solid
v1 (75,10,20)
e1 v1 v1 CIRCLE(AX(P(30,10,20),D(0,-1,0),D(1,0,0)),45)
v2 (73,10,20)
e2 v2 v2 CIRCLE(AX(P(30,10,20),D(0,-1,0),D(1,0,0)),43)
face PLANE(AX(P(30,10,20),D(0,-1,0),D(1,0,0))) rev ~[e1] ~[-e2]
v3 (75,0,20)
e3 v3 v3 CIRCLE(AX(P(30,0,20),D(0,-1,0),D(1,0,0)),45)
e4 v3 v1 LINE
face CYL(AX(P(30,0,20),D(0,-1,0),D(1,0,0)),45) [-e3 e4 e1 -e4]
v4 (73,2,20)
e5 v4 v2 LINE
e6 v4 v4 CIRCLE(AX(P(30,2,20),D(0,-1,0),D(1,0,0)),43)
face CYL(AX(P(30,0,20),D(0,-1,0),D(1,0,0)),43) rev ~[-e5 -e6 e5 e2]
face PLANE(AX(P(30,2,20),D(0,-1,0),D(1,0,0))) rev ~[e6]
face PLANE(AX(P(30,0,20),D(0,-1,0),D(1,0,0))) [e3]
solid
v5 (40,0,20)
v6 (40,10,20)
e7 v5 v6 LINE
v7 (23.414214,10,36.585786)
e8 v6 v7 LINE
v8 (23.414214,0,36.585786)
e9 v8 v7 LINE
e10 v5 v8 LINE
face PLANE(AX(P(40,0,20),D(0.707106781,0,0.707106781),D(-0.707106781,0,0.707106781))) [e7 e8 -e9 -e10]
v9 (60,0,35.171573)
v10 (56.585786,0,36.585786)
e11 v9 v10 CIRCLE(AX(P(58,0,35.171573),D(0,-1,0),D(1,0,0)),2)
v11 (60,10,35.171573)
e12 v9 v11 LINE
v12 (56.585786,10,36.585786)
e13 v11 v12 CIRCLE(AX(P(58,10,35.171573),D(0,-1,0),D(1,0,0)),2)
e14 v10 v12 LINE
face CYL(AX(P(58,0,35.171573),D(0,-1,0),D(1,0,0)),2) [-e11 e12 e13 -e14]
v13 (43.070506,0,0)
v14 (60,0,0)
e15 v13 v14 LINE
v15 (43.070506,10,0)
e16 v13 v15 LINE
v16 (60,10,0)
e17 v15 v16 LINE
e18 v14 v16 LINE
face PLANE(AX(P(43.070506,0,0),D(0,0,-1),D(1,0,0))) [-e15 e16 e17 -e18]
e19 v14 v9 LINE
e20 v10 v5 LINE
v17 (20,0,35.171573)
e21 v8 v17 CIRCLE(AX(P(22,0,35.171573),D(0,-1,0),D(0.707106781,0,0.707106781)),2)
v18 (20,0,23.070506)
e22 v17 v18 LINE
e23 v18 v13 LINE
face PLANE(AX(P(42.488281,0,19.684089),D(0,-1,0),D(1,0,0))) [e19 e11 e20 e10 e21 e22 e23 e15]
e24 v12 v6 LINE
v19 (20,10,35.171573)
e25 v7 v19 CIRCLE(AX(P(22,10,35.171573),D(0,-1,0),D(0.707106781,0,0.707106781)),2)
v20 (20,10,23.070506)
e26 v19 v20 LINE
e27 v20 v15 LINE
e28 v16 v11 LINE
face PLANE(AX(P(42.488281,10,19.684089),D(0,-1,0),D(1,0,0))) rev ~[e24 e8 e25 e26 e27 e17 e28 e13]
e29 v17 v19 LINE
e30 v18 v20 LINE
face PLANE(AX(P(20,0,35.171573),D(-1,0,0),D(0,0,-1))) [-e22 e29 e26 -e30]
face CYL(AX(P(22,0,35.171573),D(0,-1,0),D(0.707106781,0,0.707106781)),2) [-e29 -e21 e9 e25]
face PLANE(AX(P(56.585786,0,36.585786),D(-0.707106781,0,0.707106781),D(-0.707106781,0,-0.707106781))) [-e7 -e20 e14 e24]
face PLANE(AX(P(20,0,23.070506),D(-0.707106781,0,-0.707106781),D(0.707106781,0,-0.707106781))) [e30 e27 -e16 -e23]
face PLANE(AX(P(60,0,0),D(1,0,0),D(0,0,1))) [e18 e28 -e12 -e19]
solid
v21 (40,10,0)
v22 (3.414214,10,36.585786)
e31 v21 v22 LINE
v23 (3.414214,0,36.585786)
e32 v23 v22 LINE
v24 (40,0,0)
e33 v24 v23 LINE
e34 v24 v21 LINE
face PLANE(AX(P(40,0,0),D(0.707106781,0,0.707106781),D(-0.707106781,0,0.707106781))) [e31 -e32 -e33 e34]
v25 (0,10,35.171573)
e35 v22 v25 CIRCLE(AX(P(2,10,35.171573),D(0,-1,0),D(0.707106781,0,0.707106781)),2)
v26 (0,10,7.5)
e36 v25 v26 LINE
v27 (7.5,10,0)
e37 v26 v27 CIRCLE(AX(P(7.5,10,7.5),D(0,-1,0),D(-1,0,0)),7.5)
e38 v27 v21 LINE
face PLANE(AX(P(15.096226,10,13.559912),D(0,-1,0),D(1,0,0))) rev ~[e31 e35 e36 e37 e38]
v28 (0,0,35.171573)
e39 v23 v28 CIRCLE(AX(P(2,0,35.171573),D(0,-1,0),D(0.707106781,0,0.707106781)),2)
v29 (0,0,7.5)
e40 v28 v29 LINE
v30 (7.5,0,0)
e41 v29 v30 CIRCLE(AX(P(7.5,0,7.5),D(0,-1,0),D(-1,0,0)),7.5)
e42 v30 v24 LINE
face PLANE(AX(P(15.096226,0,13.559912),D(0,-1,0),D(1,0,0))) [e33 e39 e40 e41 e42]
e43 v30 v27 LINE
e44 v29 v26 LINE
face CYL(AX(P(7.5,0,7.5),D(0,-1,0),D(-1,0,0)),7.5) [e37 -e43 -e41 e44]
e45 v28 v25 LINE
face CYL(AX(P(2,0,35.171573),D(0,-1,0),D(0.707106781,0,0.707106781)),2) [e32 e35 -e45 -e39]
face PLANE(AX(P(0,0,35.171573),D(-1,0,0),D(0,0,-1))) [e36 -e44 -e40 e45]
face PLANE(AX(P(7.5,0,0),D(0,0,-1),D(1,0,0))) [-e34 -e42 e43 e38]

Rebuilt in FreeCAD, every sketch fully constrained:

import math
import FreeCAD as App
import Part
import Sketcher
from FreeCAD import Vector
Q = App.Units.Quantity


def faces_at(feature, points):
    """Names of the faces that lie closest to the given points."""
    faces = feature.Shape.Faces
    near = lambda p: min(range(len(faces)), key=lambda i: faces[i].distToShape(Part.Vertex(*p))[0])
    return sorted({f"Face{near(p) + 1}" for p in points})

doc = App.newDocument("Part")
body = doc.addObject("PartDesign::Body", "Body")

# Sketch on XZ plane
sketch1 = body.newObject("Sketcher::SketchObject", "Sketch")
sketch1.AttachmentSupport = (doc.getObject("XZ_Plane"), [""])
sketch1.MapMode = "FlatFace"
sketch1.addGeometry([
    Part.ArcOfCircle(Part.Circle(Vector(7.5, 7.5, 0), Vector(0, 0, 1), 7.5), math.radians(180), math.radians(270)),  # 0
    Part.LineSegment(Vector(7.5, 0, 0), Vector(40, 0, 0)),  # 1
    Part.LineSegment(Vector(40, 0, 0), Vector(3.4, 36.6, 0)),  # 2
    Part.ArcOfCircle(Part.Circle(Vector(2, 35.2, 0), Vector(0, 0, 1), 2), math.radians(45), math.radians(180)),  # 3
    Part.LineSegment(Vector(0, 35.2, 0), Vector(0, 7.5, 0)),  # 4
], False)
sketch1.addConstraint([
    Sketcher.Constraint("Tangent", 0, 2, 1, 1),
    Sketcher.Constraint("Coincident", 1, 2, 2, 1),
    Sketcher.Constraint("Tangent", 2, 2, 3, 1),
    Sketcher.Constraint("Tangent", 3, 2, 4, 1),
    Sketcher.Constraint("Tangent", 4, 2, 0, 1),
    Sketcher.Constraint("Horizontal", 1),
    Sketcher.Constraint("Vertical", 4),
    Sketcher.Constraint("PointOnObject", 0, 2, -1),
    Sketcher.Constraint("PointOnObject", 3, 2, -2),
    Sketcher.Constraint("Radius", 3, 2.0),
    Sketcher.Constraint("Radius", 0, 7.5),
    Sketcher.Constraint("Angle", 2, Q("135 deg")),
    Sketcher.Constraint("DistanceX", 1, 1, 1, 2, 32.5),
])
pad1 = body.newObject("PartDesign::Pad", "Pad")
pad1.Profile = sketch1
pad1.Length = 10
pad1.Reversed = True
body2 = doc.addObject("PartDesign::Body", "Body001")

# Sketch on XZ plane
sketch2 = body2.newObject("Sketcher::SketchObject", "Sketch001")
sketch2.AttachmentSupport = (doc.getObject("XZ_Plane001"), [""])
sketch2.MapMode = "FlatFace"
sketch2.addGeometry([
    Part.LineSegment(Vector(20, 35.2, 0), Vector(20, 23.1, 0)),  # 0
    Part.LineSegment(Vector(20, 23.1, 0), Vector(43.1, 0, 0)),  # 1
    Part.LineSegment(Vector(43.1, 0, 0), Vector(60, 0, 0)),  # 2
    Part.LineSegment(Vector(60, 0, 0), Vector(60, 35.2, 0)),  # 3
    Part.ArcOfCircle(Part.Circle(Vector(58, 35.2, 0), Vector(0, 0, 1), 2), math.radians(0), math.radians(135)),  # 4
    Part.LineSegment(Vector(56.6, 36.6, 0), Vector(40, 20, 0)),  # 5
    Part.LineSegment(Vector(40, 20, 0), Vector(23.4, 36.6, 0)),  # 6
    Part.ArcOfCircle(Part.Circle(Vector(22, 35.2, 0), Vector(0, 0, 1), 2), math.radians(45), math.radians(180)),  # 7
], False)
sketch2.addConstraint([
    Sketcher.Constraint("Coincident", 0, 2, 1, 1),
    Sketcher.Constraint("Coincident", 1, 2, 2, 1),
    Sketcher.Constraint("Coincident", 2, 2, 3, 1),
    Sketcher.Constraint("Tangent", 3, 2, 4, 1),
    Sketcher.Constraint("Tangent", 4, 2, 5, 1),
    Sketcher.Constraint("Coincident", 5, 2, 6, 1),
    Sketcher.Constraint("Tangent", 6, 2, 7, 1),
    Sketcher.Constraint("Tangent", 7, 2, 0, 1),
    Sketcher.Constraint("Vertical", 0),
    Sketcher.Constraint("Horizontal", 2),
    Sketcher.Constraint("Vertical", 3),
    Sketcher.Constraint("Equal", 4, 7),
    Sketcher.Constraint("PointOnObject", 1, 2, -1),
    Sketcher.Constraint("Perpendicular", 1, 5),
    Sketcher.Constraint("Perpendicular", 5, 6),
    Sketcher.Constraint("Horizontal", 4, 3, 7, 3),
    Sketcher.Constraint("Horizontal", 4, 2, 6, 2),
    Sketcher.Constraint("Radius", 4, 2.0),
    Sketcher.Constraint("DistanceX", -1, 1, 4, 3, 58.0),
    Sketcher.Constraint("DistanceX", -1, 1, 7, 3, 22.0),
    Sketcher.Constraint("DistanceY", -1, 1, 5, 2, 20.0),
    Sketcher.Constraint("DistanceX", 2, 1, 2, 2, 16.929494),
])
pad2 = body2.newObject("PartDesign::Pad", "Pad001")
pad2.Profile = sketch2
pad2.Length = 10
pad2.Reversed = True
body3 = doc.addObject("PartDesign::Body", "Body002")

# Sketch on XZ plane
sketch3 = body3.newObject("Sketcher::SketchObject", "Sketch002")
sketch3.AttachmentSupport = (doc.getObject("XZ_Plane002"), [""])
sketch3.MapMode = "FlatFace"
sketch3.addGeometry(Part.Circle(Vector(30, 20, 0), Vector(0, 0, 1), 45), False)
sketch3.addConstraint([
    Sketcher.Constraint("Diameter", 0, 90.0),
    Sketcher.Constraint("DistanceX", -1, 1, 0, 3, 30.0),
    Sketcher.Constraint("DistanceY", -1, 1, 0, 3, 20.0),
])
pad3 = body3.newObject("PartDesign::Pad", "Pad002")
pad3.Profile = sketch3
pad3.Length = 10
pad3.Reversed = True
doc.recompute()

thickness = body3.newObject("PartDesign::Thickness", "Thickness")
thickness.Base = (pad3, faces_at(pad3, [(30, 10, 20)]))
thickness.Value = 2
thickness.Reversed = True
thickness.Join = "Arc"

doc.recompute()
